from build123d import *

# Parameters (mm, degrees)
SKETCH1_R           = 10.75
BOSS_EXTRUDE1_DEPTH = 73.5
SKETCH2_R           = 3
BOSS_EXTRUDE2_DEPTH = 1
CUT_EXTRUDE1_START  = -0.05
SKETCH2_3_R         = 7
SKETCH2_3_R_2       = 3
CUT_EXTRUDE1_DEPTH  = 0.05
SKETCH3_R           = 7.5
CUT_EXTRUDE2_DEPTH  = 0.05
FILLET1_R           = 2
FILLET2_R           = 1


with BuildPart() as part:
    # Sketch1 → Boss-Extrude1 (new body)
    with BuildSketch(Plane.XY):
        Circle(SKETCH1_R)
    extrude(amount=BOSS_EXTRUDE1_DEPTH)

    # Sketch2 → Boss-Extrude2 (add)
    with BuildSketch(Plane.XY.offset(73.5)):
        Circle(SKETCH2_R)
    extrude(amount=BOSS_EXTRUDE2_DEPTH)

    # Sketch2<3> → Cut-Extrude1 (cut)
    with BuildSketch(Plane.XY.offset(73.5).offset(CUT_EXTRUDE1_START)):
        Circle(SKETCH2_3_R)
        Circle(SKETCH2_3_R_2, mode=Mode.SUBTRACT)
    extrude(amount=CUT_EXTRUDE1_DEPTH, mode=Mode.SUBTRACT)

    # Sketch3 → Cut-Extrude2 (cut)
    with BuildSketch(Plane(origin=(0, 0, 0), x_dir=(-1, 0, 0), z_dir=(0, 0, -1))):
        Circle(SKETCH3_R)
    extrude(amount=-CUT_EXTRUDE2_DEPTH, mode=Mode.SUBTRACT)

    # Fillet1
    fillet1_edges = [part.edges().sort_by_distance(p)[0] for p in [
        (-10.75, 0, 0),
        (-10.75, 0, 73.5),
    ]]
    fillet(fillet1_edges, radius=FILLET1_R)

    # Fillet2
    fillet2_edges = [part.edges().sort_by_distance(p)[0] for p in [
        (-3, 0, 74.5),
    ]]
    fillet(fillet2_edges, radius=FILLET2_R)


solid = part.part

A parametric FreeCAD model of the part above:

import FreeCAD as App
import Part
import Sketcher


def edges_at(feature, points):
    """Names of the edges that pass closest to the given points."""
    edges = feature.Shape.Edges
    near = lambda p: min(range(len(edges)), key=lambda i: edges[i].distToShape(Part.Vertex(*p))[0])
    return sorted({f"Edge{near(p) + 1}" for p in points})

doc = App.newDocument("Part")
body = doc.addObject("PartDesign::Body", "Body")

sketch1 = body.newObject("Sketcher::SketchObject", "Sketch")
sketch1.AttachmentSupport = (doc.getObject("XY_Plane"), [""])
sketch1.MapMode = "FlatFace"
sketch1.addGeometry(Part.Circle(App.Vector(0, 0, 0), App.Vector(0, 0, 1), 11), False)
sketch1.addConstraint([
    Sketcher.Constraint("Coincident", 0, 3, -1, 1),
    Sketcher.Constraint("Diameter", 0, 21.5),
])
pad1 = body.newObject("PartDesign::Pad", "Pad")
pad1.Profile = sketch1
pad1.Length = 73.5

sketch2 = body.newObject("Sketcher::SketchObject", "Sketch001")
sketch2.AttachmentSupport = (doc.getObject("XY_Plane"), [""])
sketch2.MapMode = "FlatFace"
sketch2.AttachmentOffset = App.Placement(App.Vector(0, 0, 73.5), App.Rotation())
sketch2.addGeometry(Part.Circle(App.Vector(0, 0, 0), App.Vector(0, 0, 1), 3), False)
sketch2.addConstraint([
    Sketcher.Constraint("Coincident", 0, 3, -1, 1),
    Sketcher.Constraint("Diameter", 0, 6.0),
])
pad2 = body.newObject("PartDesign::Pad", "Pad001")
pad2.Profile = sketch2
pad2.Length = 1

sketch3 = body.newObject("Sketcher::SketchObject", "Sketch002")
sketch3.AttachmentSupport = (doc.getObject("XY_Plane"), [""])
sketch3.MapMode = "FlatFace"
sketch3.AttachmentOffset = App.Placement(App.Vector(0, 0, 73.45), App.Rotation())
sketch3.addGeometry([
    Part.Circle(App.Vector(0, 0, 0), App.Vector(0, 0, 1), 7),
    Part.Circle(App.Vector(0, 0, 0), App.Vector(0, 0, 1), 3),
], False)
sketch3.addConstraint([
    Sketcher.Constraint("Coincident", 0, 3, -1, 1),
    Sketcher.Constraint("Coincident", 1, 3, -1, 1),
    Sketcher.Constraint("Diameter", 0, 14.0),
    Sketcher.Constraint("Diameter", 1, 6.0),
])
pocket1 = body.newObject("PartDesign::Pocket", "Pocket")
pocket1.Profile = sketch3
pocket1.Length = 0.05
pocket1.Reversed = True

sketch4 = body.newObject("Sketcher::SketchObject", "Sketch003")
sketch4.AttachmentSupport = (doc.getObject("XY_Plane"), [""])
sketch4.MapMode = "FlatFace"
sketch4.addGeometry(Part.Circle(App.Vector(0, 0, 0), App.Vector(0, 0, 1), 8), False)
sketch4.addConstraint([
    Sketcher.Constraint("Coincident", 0, 3, -1, 1),
    Sketcher.Constraint("Diameter", 0, 15.0),
])
pocket2 = body.newObject("PartDesign::Pocket", "Pocket001")
pocket2.Profile = sketch4
pocket2.Length = 0.05
pocket2.Reversed = True
doc.recompute()

fillet = body.newObject("PartDesign::Fillet", "Fillet")
fillet.Base = (pocket2, edges_at(pocket2, [(-10.75, 0, 0), (-10.75, 0, 73.5)]))
fillet.Radius = 2
doc.recompute()

fillet2 = body.newObject("PartDesign::Fillet", "Fillet001")
fillet2.Base = (fillet, edges_at(fillet, [(-3, 0, 74.5)]))
fillet2.Radius = 1

doc.recompute()
